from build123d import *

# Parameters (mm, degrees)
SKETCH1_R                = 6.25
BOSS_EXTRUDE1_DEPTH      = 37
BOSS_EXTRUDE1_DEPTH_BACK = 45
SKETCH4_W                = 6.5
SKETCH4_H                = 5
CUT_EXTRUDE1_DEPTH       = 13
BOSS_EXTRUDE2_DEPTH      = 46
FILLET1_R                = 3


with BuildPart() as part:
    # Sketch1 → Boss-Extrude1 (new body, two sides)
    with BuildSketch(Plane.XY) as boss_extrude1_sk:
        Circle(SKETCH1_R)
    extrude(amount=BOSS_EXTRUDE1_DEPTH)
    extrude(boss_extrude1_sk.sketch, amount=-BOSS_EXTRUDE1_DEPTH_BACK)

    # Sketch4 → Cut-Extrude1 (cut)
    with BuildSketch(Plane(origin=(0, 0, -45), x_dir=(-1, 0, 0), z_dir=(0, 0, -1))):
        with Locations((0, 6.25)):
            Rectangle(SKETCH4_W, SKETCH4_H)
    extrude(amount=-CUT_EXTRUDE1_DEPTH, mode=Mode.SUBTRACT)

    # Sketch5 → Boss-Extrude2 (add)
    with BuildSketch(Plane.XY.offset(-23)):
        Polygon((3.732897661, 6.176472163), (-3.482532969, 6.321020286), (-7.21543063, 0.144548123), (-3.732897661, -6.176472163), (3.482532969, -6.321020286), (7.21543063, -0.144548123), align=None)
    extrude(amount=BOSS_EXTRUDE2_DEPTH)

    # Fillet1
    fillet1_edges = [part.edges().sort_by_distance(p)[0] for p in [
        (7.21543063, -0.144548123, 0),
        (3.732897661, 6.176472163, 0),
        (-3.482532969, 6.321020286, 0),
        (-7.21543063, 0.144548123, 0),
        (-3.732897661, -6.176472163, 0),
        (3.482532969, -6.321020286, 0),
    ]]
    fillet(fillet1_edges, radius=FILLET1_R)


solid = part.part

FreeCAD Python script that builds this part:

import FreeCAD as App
import Part
import Sketcher
Q = App.Units.Quantity


def edges_at(feature, points):
    """Names of the edges that pass closest to the given points."""
    edges = feature.Shape.Edges
    near = lambda p: min(range(len(edges)), key=lambda i: edges[i].distToShape(Part.Vertex(*p))[0])
    return sorted({f"Edge{near(p) + 1}" for p in points})


def add_polygon(sketch, points):
    """Adds a closed chain of lines whose ends are joined by coincident constraints."""
    first, n = sketch.GeometryCount, len(points)
    for a, b in zip(points, points[1:] + points[:1]):
        sketch.addGeometry(Part.LineSegment(App.Vector(*a, 0), App.Vector(*b, 0)), False)
    for i in range(n):
        sketch.addConstraint(Sketcher.Constraint("Coincident", first + i, 2, first + (i + 1) % n, 1))

doc = App.newDocument("Part")
params = doc.addObject("Spreadsheet::Sheet", "Params")
for row, (alias, value) in enumerate([
    ("sketch1_diameter", "12.5 mm"),
    ("pad1_length", "37 mm"),
    ("pad1_length2", "45 mm"),
    ("sketch2_height", "5 mm"),
    ("sketch2_width", "6.5 mm"),
    ("pocket1_length", "13 mm"),
    ("pad2_length", "46 mm"),
    ("fillet_radius", "3 mm"),
], start=1):
    params.set(f"A{row}", alias)
    params.set(f"B{row}", "=" + value)
    params.setAlias(f"B{row}", alias)

body = doc.addObject("PartDesign::Body", "Body")

# Sketch on XY plane
sketch1 = body.newObject("Sketcher::SketchObject", "Sketch")
sketch1.AttachmentSupport = (doc.getObject("XY_Plane"), [""])
sketch1.MapMode = "FlatFace"
sketch1.addGeometry(Part.Circle(App.Vector(0, 0, 0), App.Vector(0, 0, 1), 6), False)
sketch1.addConstraint(Sketcher.Constraint("Coincident", 0, 3, -1, 1))
sketch1.addConstraint(Sketcher.Constraint("Diameter", 0, Q("12.5 mm")))
sketch1.setExpression("Constraints[1]", "Params.sketch1_diameter")
pad1 = body.newObject("PartDesign::Pad", "Pad")
pad1.Profile = sketch1
pad1.Type = "TwoLengths"
pad1.setExpression("Length", "Params.pad1_length")
pad1.setExpression("Length2", "Params.pad1_length2")

# Sketch on XY plane
sketch2 = body.newObject("Sketcher::SketchObject", "Sketch001")
sketch2.AttachmentSupport = (doc.getObject("XY_Plane"), [""])
sketch2.MapMode = "FlatFace"
sketch2.AttachmentOffset = App.Placement(App.Vector(0, 0, -45), App.Rotation())
add_polygon(sketch2, [(3, 9), (3, 4), (-3, 4), (-3, 9)])  # lines 0-3
sketch2.addConstraint(Sketcher.Constraint("Vertical", 0))
sketch2.addConstraint(Sketcher.Constraint("Horizontal", 1))
sketch2.addConstraint(Sketcher.Constraint("Vertical", 2))
sketch2.addConstraint(Sketcher.Constraint("Horizontal", 3))
sketch2.addConstraint(Sketcher.Constraint("DistanceY", 0, 2, 0, 1, Q("5 mm")))
sketch2.addConstraint(Sketcher.Constraint("DistanceX", 1, 2, 1, 1, Q("6.5 mm")))
sketch2.addConstraint(Sketcher.Constraint("DistanceX", -1, 1, 0, 2, Q("3.25 mm")))
sketch2.addConstraint(Sketcher.Constraint("DistanceY", -1, 1, 0, 2, Q("3.75 mm")))
sketch2.setExpression("Constraints[8]", "Params.sketch2_height")
sketch2.setExpression("Constraints[9]", "Params.sketch2_width")
pocket1 = body.newObject("PartDesign::Pocket", "Pocket")
pocket1.Profile = sketch2
pocket1.setExpression("Length", "Params.pocket1_length")
pocket1.Reversed = True

# Sketch on XY plane
sketch3 = body.newObject("Sketcher::SketchObject", "Sketch002")
sketch3.AttachmentSupport = (doc.getObject("XY_Plane"), [""])
sketch3.MapMode = "FlatFace"
sketch3.AttachmentOffset = App.Placement(App.Vector(0, 0, -23), App.Rotation())
add_polygon(sketch3, [(4, 6), (-3, 6), (-7, 0), (-4, -6), (3, -6), (7, 0)])  # lines 0-5
sketch3.addConstraint(Sketcher.Constraint("Symmetric", 0, 2, 3, 2, -1, 1))
sketch3.addConstraint(Sketcher.Constraint("Symmetric", 1, 2, 4, 2, -1, 1))
sketch3.addConstraint(Sketcher.Constraint("Symmetric", 2, 2, 5, 2, -1, 1))
sketch3.addConstraint(Sketcher.Constraint("Equal", 0, 1))
sketch3.addConstraint(Sketcher.Constraint("Equal", 1, 2))
sketch3.addConstraint(Sketcher.Constraint("Distance", 0, Q("7.216878 mm")))
sketch3.addConstraint(Sketcher.Constraint("DistanceY", -1, 1, 0, 2, Q("6.32102 mm")))
sketch3.addConstraint(Sketcher.Constraint("DistanceX", 1, 2, -1, 1, Q("7.215431 mm")))
sketch3.addConstraint(Sketcher.Constraint("DistanceY", -1, 1, 1, 2, Q("0.144548 mm")))
pad2 = body.newObject("PartDesign::Pad", "Pad001")
pad2.Profile = sketch3
pad2.setExpression("Length", "Params.pad2_length")
doc.recompute()

fillet = body.newObject("PartDesign::Fillet", "Fillet")
fillet.Base = (pad2, edges_at(pad2, [
    (7.215, -0.145, 0),
    (3.733, 6.176, 0),
    (-3.483, 6.321, 0),
    (-7.215, 0.145, 0),
    (-3.733, -6.176, 0),
    (3.483, -6.321, 0),
]))
fillet.setExpression("Radius", "Params.fillet_radius")

doc.recompute()
